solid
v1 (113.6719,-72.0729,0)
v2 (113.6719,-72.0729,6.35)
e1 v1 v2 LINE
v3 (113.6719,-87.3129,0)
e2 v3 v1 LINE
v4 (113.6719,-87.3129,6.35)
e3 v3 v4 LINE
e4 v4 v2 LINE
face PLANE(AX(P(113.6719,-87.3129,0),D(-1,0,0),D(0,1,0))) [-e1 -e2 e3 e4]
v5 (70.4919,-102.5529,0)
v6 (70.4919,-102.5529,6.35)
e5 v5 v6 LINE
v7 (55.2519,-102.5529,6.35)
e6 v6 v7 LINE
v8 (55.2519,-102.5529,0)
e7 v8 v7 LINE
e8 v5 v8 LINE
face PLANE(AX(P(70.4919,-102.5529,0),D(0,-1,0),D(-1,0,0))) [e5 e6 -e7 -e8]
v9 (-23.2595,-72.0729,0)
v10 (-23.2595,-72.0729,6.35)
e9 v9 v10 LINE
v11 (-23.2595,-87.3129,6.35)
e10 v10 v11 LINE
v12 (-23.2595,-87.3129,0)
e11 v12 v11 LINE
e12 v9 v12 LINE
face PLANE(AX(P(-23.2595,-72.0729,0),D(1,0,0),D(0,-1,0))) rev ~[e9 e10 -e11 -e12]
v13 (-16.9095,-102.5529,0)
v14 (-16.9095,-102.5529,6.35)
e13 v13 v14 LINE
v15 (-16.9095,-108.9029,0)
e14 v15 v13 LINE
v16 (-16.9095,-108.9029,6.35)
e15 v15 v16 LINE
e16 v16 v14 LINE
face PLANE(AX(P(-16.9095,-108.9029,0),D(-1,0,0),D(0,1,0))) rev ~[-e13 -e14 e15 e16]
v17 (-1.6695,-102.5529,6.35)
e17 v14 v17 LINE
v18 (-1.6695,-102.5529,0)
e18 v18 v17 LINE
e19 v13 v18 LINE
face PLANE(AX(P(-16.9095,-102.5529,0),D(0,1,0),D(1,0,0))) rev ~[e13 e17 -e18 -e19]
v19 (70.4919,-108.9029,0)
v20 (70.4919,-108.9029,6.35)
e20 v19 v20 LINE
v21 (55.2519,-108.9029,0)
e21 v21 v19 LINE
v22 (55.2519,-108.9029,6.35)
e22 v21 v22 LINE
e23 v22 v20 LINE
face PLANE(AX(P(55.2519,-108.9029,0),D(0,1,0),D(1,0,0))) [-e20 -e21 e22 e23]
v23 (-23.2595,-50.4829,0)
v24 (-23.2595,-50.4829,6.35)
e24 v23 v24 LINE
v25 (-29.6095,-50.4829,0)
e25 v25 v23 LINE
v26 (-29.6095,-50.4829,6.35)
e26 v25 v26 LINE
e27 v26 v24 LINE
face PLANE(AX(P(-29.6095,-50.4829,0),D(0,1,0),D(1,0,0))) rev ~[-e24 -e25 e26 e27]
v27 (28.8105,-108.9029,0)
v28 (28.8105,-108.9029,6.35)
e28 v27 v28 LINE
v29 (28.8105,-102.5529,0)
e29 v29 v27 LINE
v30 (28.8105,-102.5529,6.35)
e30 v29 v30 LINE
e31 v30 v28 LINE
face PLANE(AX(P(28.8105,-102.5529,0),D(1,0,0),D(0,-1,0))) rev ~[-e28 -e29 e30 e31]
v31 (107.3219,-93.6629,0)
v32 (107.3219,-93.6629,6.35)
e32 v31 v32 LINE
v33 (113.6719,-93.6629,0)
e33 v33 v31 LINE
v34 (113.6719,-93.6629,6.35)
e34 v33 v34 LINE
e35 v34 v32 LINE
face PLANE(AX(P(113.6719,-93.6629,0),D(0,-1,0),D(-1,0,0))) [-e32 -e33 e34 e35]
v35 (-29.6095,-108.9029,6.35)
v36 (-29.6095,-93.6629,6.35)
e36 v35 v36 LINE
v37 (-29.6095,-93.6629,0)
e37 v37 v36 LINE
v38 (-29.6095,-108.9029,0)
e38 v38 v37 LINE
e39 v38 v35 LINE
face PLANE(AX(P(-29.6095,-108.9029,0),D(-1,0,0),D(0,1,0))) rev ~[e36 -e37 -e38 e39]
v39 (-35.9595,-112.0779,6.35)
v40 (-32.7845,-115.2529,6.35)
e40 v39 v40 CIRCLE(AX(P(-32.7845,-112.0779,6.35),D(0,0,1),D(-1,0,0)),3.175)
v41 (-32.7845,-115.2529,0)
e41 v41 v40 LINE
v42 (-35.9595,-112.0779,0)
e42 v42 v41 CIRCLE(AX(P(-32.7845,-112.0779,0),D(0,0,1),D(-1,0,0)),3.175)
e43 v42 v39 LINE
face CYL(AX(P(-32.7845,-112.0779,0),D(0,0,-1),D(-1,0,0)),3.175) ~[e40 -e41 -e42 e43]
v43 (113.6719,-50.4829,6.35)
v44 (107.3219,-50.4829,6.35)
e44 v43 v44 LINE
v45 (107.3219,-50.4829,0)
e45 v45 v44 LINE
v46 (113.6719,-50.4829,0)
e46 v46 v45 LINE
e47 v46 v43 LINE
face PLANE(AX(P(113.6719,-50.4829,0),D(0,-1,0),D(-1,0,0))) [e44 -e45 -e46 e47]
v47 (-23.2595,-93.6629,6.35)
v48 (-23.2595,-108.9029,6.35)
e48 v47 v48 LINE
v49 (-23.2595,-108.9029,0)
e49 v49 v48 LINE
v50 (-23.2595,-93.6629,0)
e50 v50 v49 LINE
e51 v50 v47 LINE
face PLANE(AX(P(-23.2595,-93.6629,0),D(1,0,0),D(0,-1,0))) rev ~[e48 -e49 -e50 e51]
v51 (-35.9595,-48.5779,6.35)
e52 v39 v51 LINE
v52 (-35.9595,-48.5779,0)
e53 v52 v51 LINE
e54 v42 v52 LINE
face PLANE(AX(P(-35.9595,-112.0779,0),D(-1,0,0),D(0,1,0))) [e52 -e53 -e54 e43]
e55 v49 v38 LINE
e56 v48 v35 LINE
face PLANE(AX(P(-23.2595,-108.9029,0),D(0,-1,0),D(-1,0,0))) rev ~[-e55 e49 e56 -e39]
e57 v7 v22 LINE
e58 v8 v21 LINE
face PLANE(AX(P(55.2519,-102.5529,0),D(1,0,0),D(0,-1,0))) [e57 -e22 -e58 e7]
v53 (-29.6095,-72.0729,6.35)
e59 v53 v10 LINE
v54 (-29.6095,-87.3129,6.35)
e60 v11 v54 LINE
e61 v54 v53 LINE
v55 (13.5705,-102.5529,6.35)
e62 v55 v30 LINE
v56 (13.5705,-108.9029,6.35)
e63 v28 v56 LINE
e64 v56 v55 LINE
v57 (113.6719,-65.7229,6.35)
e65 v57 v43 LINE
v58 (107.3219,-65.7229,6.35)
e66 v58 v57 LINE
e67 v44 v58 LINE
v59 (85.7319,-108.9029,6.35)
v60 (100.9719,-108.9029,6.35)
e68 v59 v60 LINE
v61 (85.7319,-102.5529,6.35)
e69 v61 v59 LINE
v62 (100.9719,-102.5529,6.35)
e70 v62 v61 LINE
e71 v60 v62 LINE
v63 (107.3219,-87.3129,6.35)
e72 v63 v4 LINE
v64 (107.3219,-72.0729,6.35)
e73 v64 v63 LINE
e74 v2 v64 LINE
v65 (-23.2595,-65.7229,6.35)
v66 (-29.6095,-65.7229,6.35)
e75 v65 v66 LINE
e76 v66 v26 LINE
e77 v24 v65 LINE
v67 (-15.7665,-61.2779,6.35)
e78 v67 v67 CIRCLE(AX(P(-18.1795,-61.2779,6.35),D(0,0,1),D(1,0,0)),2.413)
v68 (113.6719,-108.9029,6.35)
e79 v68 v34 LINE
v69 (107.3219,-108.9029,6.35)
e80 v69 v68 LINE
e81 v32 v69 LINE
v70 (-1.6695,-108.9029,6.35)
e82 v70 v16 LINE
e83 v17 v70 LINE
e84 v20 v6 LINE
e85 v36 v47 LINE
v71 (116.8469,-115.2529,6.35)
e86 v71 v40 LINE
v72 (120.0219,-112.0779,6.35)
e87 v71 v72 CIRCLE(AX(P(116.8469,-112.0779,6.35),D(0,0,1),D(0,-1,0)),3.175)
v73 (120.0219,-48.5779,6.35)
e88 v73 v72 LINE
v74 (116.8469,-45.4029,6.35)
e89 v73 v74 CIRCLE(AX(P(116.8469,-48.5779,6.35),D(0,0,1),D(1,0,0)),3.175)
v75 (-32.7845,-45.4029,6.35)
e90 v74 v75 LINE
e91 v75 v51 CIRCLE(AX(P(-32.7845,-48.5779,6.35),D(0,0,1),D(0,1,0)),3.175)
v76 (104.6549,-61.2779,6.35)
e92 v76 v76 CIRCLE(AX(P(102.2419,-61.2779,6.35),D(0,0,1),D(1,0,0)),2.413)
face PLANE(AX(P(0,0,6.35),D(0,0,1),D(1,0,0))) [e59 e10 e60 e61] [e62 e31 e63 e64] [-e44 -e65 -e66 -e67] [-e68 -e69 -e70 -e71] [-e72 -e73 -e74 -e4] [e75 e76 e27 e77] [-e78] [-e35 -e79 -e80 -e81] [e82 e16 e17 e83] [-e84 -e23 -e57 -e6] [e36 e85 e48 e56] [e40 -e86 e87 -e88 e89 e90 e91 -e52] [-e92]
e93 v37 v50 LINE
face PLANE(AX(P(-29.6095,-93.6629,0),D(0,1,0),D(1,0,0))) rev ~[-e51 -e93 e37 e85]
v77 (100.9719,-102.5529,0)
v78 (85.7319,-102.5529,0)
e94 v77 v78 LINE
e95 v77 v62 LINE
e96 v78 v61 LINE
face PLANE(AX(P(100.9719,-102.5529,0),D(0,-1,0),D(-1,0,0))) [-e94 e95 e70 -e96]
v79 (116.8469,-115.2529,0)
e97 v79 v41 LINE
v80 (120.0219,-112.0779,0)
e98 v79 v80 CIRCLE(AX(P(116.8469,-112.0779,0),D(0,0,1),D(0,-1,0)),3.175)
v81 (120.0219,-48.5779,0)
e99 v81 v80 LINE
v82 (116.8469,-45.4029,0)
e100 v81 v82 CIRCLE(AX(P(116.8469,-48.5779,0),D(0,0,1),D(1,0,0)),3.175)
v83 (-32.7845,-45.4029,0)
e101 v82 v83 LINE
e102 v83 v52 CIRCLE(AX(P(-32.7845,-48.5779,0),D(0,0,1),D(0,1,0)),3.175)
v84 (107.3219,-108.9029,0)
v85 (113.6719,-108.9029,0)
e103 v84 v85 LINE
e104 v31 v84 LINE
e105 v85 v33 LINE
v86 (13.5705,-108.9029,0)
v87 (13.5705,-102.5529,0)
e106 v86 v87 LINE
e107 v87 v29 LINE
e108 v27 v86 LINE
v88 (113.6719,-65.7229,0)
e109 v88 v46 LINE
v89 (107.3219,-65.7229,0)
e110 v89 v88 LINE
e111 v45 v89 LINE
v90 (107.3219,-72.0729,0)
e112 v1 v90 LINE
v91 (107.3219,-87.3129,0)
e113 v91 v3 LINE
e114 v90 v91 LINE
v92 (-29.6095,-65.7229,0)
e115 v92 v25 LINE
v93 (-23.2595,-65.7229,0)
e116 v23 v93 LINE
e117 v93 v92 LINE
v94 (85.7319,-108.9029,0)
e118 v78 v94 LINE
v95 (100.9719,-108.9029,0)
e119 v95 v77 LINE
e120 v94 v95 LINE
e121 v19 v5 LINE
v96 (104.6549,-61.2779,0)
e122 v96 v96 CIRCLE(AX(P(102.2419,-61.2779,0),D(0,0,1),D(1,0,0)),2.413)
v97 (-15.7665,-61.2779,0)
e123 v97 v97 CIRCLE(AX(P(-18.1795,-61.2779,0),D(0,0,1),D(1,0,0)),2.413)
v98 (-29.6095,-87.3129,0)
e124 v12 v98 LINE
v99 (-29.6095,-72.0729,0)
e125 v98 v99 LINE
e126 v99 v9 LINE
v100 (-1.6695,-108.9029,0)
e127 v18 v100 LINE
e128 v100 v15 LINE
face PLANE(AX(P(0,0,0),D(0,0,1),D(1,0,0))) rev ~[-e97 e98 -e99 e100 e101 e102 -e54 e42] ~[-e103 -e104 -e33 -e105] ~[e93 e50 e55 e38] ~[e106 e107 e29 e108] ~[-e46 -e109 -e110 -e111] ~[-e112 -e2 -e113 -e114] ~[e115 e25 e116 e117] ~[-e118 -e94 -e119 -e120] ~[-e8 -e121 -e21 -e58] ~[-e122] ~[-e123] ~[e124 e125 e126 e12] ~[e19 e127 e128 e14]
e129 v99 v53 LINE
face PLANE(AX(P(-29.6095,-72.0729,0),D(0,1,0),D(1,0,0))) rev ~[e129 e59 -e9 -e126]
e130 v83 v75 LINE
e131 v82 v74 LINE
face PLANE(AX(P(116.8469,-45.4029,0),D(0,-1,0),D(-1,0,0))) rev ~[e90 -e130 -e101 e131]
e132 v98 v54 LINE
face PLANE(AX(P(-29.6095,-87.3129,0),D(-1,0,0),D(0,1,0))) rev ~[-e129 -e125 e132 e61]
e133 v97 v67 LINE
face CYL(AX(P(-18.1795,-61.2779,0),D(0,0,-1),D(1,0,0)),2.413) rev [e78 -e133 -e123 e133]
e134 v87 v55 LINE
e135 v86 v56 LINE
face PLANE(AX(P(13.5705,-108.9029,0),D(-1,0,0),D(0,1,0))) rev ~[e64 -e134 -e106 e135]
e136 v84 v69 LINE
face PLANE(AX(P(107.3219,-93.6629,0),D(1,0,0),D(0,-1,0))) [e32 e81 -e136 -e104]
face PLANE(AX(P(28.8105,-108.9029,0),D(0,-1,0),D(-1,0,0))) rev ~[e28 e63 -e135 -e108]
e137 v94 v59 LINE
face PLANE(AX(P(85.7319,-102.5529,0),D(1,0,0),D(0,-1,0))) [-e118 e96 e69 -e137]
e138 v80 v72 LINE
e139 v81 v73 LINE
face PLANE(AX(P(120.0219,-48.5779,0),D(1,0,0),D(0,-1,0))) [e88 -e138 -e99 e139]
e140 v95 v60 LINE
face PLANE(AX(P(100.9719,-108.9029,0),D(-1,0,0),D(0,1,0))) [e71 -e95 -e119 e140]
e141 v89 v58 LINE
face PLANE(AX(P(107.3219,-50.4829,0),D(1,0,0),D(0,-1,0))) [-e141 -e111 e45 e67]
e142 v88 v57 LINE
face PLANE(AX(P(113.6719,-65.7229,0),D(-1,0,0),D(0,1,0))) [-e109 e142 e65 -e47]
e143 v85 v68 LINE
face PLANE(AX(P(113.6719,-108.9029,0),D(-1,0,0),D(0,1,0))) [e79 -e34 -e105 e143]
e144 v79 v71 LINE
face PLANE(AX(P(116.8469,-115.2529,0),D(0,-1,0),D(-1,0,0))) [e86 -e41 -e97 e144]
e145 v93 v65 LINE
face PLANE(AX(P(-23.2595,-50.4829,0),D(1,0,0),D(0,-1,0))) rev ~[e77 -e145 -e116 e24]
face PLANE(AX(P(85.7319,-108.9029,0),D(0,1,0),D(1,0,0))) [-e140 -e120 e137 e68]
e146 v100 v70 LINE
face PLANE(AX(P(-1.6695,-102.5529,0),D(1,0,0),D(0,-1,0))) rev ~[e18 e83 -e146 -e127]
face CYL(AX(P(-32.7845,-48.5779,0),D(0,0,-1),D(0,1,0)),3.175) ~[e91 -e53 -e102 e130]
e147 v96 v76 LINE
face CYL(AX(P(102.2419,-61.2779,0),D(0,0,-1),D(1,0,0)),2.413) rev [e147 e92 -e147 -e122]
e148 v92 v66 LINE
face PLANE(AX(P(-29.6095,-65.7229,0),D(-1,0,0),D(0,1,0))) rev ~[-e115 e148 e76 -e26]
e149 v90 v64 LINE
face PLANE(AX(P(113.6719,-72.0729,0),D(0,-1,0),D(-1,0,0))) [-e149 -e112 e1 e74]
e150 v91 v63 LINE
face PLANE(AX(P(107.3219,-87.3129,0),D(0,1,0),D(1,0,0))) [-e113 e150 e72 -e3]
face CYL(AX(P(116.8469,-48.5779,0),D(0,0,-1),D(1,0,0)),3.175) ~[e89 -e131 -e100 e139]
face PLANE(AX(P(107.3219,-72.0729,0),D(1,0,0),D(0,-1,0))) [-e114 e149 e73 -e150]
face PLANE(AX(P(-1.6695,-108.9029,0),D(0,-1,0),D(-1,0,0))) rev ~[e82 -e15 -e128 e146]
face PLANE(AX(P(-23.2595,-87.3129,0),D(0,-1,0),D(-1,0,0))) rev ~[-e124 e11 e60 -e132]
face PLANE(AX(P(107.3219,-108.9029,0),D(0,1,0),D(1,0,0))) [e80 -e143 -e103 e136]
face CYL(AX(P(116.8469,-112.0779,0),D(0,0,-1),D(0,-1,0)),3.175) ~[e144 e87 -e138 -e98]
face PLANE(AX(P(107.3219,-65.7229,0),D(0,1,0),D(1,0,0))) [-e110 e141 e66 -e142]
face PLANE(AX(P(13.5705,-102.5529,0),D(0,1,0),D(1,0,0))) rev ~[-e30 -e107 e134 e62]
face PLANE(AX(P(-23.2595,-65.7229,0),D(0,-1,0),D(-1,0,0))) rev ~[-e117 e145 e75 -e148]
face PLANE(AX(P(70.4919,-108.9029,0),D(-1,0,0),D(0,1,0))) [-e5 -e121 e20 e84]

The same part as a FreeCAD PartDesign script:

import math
import FreeCAD as App
import Part
import Sketcher
Q = App.Units.Quantity


def add_polygon(sketch, points):
    """Adds a closed chain of lines whose ends are joined by coincident constraints."""
    first, n = sketch.GeometryCount, len(points)
    for a, b in zip(points, points[1:] + points[:1]):
        sketch.addGeometry(Part.LineSegment(App.Vector(*a, 0), App.Vector(*b, 0)), False)
    for i in range(n):
        sketch.addConstraint(Sketcher.Constraint("Coincident", first + i, 2, first + (i + 1) % n, 1))

doc = App.newDocument("Part")
body = doc.addObject("PartDesign::Body", "Body")

# Sketch on XY plane
sketch1 = body.newObject("Sketcher::SketchObject", "Sketch")
sketch1.AttachmentSupport = (doc.getObject("XY_Plane"), [""])
sketch1.MapMode = "FlatFace"
sketch1.addGeometry(Part.ArcOfCircle(Part.Circle(App.Vector(116.8469, -48.5779, 0), App.Vector(0, 0, 1), 3.175), math.radians(0), math.radians(90)), False)  # 0
sketch1.addGeometry(Part.LineSegment(App.Vector(116.8469, -45.4029, 0), App.Vector(-32.7845, -45.4029, 0)), False)  # 1
sketch1.addGeometry(Part.ArcOfCircle(Part.Circle(App.Vector(-32.7845, -48.5779, 0), App.Vector(0, 0, 1), 3.175), math.radians(90), math.radians(180)), False)  # 2
sketch1.addGeometry(Part.LineSegment(App.Vector(-35.9595, -48.5779, 0), App.Vector(-35.9595, -112.0779, 0)), False)  # 3
sketch1.addGeometry(Part.ArcOfCircle(Part.Circle(App.Vector(-32.7845, -112.0779, 0), App.Vector(0, 0, 1), 3.175), math.radians(180), math.radians(270)), False)  # 4
sketch1.addGeometry(Part.LineSegment(App.Vector(-32.7845, -115.2529, 0), App.Vector(116.8469, -115.2529, 0)), False)  # 5
sketch1.addGeometry(Part.ArcOfCircle(Part.Circle(App.Vector(116.8469, -112.0779, 0), App.Vector(0, 0, 1), 3.175), math.radians(-90), math.radians(0)), False)  # 6
sketch1.addGeometry(Part.LineSegment(App.Vector(120.0219, -112.0779, 0), App.Vector(120.0219, -48.5779, 0)), False)  # 7
add_polygon(sketch1, [(-29.6095, -108.9029), (-29.6095, -93.6629), (-23.2595, -93.6629), (-23.2595, -108.9029)])  # lines 8-11
add_polygon(sketch1, [(-16.9095, -108.9029), (-16.9095, -102.5529), (-1.6695, -102.5529), (-1.6695, -108.9029)])  # lines 12-15
add_polygon(sketch1, [(13.5705, -108.9029), (13.5705, -102.5529), (28.8105, -102.5529), (28.8105, -108.9029)])  # lines 16-19
add_polygon(sketch1, [(55.2519, -102.5529), (70.4919, -102.5529), (70.4919, -108.9029), (55.2519, -108.9029)])  # lines 20-23
add_polygon(sketch1, [(85.7319, -102.5529), (100.9719, -102.5529), (100.9719, -108.9029), (85.7319, -108.9029)])  # lines 24-27
add_polygon(sketch1, [(107.3219, -93.6629), (113.6719, -93.6629), (113.6719, -108.9029), (107.3219, -108.9029)])  # lines 28-31
add_polygon(sketch1, [(-29.6095, -87.3129), (-29.6095, -72.0729), (-23.2595, -72.0729), (-23.2595, -87.3129)])  # lines 32-35
sketch1.addGeometry(Part.Circle(App.Vector(-18.1795, -61.2779, 0), App.Vector(0, 0, 1), 2.413), False)  # 36
add_polygon(sketch1, [(-29.6095, -65.7229), (-29.6095, -50.4829), (-23.2595, -50.4829), (-23.2595, -65.7229)])  # lines 37-40
add_polygon(sketch1, [(107.3219, -72.0729), (113.6719, -72.0729), (113.6719, -87.3129), (107.3219, -87.3129)])  # lines 41-44
sketch1.addGeometry(Part.Circle(App.Vector(102.2419, -61.2779, 0), App.Vector(0, 0, 1), 2.413), False)  # 45
add_polygon(sketch1, [(107.3219, -50.4829), (113.6719, -50.4829), (113.6719, -65.7229), (107.3219, -65.7229)])  # lines 46-49
sketch1.addConstraint(Sketcher.Constraint("Tangent", 0, 2, 1, 1))
sketch1.addConstraint(Sketcher.Constraint("Tangent", 1, 2, 2, 1))
sketch1.addConstraint(Sketcher.Constraint("Tangent", 2, 2, 3, 1))
sketch1.addConstraint(Sketcher.Constraint("Tangent", 3, 2, 4, 1))
sketch1.addConstraint(Sketcher.Constraint("Tangent", 4, 2, 5, 1))
sketch1.addConstraint(Sketcher.Constraint("Tangent", 5, 2, 6, 1))
sketch1.addConstraint(Sketcher.Constraint("Tangent", 6, 2, 7, 1))
sketch1.addConstraint(Sketcher.Constraint("Tangent", 7, 2, 0, 1))
sketch1.addConstraint(Sketcher.Constraint("Horizontal", 1))
sketch1.addConstraint(Sketcher.Constraint("Vertical", 3))
sketch1.addConstraint(Sketcher.Constraint("Horizontal", 5))
sketch1.addConstraint(Sketcher.Constraint("Vertical", 7))
sketch1.addConstraint(Sketcher.Constraint("Vertical", 8))
sketch1.addConstraint(Sketcher.Constraint("Horizontal", 9))
sketch1.addConstraint(Sketcher.Constraint("Vertical", 10))
sketch1.addConstraint(Sketcher.Constraint("Horizontal", 11))
sketch1.addConstraint(Sketcher.Constraint("Vertical", 12))
sketch1.addConstraint(Sketcher.Constraint("Horizontal", 13))
sketch1.addConstraint(Sketcher.Constraint("Vertical", 14))
sketch1.addConstraint(Sketcher.Constraint("Horizontal", 15))
sketch1.addConstraint(Sketcher.Constraint("Vertical", 16))
sketch1.addConstraint(Sketcher.Constraint("Horizontal", 17))
sketch1.addConstraint(Sketcher.Constraint("Vertical", 18))
sketch1.addConstraint(Sketcher.Constraint("Horizontal", 19))
sketch1.addConstraint(Sketcher.Constraint("Horizontal", 20))
sketch1.addConstraint(Sketcher.Constraint("Vertical", 21))
sketch1.addConstraint(Sketcher.Constraint("Horizontal", 22))
sketch1.addConstraint(Sketcher.Constraint("Vertical", 23))
sketch1.addConstraint(Sketcher.Constraint("Horizontal", 24))
sketch1.addConstraint(Sketcher.Constraint("Vertical", 25))
sketch1.addConstraint(Sketcher.Constraint("Horizontal", 26))
sketch1.addConstraint(Sketcher.Constraint("Vertical", 27))
sketch1.addConstraint(Sketcher.Constraint("Horizontal", 28))
sketch1.addConstraint(Sketcher.Constraint("Vertical", 29))
sketch1.addConstraint(Sketcher.Constraint("Horizontal", 30))
sketch1.addConstraint(Sketcher.Constraint("Vertical", 31))
sketch1.addConstraint(Sketcher.Constraint("Vertical", 32))
sketch1.addConstraint(Sketcher.Constraint("Horizontal", 33))
sketch1.addConstraint(Sketcher.Constraint("Vertical", 34))
sketch1.addConstraint(Sketcher.Constraint("Horizontal", 35))
sketch1.addConstraint(Sketcher.Constraint("Vertical", 37))
sketch1.addConstraint(Sketcher.Constraint("Horizontal", 38))
sketch1.addConstraint(Sketcher.Constraint("Vertical", 39))
sketch1.addConstraint(Sketcher.Constraint("Horizontal", 40))
sketch1.addConstraint(Sketcher.Constraint("Horizontal", 41))
sketch1.addConstraint(Sketcher.Constraint("Vertical", 42))
sketch1.addConstraint(Sketcher.Constraint("Horizontal", 43))
sketch1.addConstraint(Sketcher.Constraint("Vertical", 44))
sketch1.addConstraint(Sketcher.Constraint("Horizontal", 46))
sketch1.addConstraint(Sketcher.Constraint("Vertical", 47))
sketch1.addConstraint(Sketcher.Constraint("Horizontal", 48))
sketch1.addConstraint(Sketcher.Constraint("Vertical", 49))
sketch1.addConstraint(Sketcher.Constraint("Equal", 0, 2))
sketch1.addConstraint(Sketcher.Constraint("Equal", 2, 4))
sketch1.addConstraint(Sketcher.Constraint("Equal", 4, 6))
sketch1.addConstraint(Sketcher.Constraint("Equal", 36, 45))
sketch1.addConstraint(Sketcher.Constraint("Horizontal", 36, 3, 45, 3))
sketch1.addConstraint(Sketcher.Constraint("Horizontal", 11, 2, 14, 2))
sketch1.addConstraint(Sketcher.Constraint("Horizontal", 13, 2, 16, 2))
sketch1.addConstraint(Sketcher.Constraint("Horizontal", 15, 2, 18, 2))
sketch1.addConstraint(Sketcher.Constraint("Horizontal", 17, 2, 20, 2))
sketch1.addConstraint(Sketcher.Constraint("Horizontal", 19, 2, 21, 2))
sketch1.addConstraint(Sketcher.Constraint("Horizontal", 23, 2, 24, 2))
sketch1.addConstraint(Sketcher.Constraint("Horizontal", 22, 2, 25, 2))
sketch1.addConstraint(Sketcher.Constraint("Horizontal", 9, 2, 28, 2))
sketch1.addConstraint(Sketcher.Constraint("Horizontal", 26, 2, 29, 2))
sketch1.addConstraint(Sketcher.Constraint("Horizontal", 33, 2, 41, 2))
sketch1.addConstraint(Sketcher.Constraint("Horizontal", 35, 2, 42, 2))
sketch1.addConstraint(Sketcher.Constraint("Horizontal", 38, 2, 46, 2))
sketch1.addConstraint(Sketcher.Constraint("Horizontal", 40, 2, 47, 2))
sketch1.addConstraint(Sketcher.Constraint("Vertical", 11, 2, 32, 2))
sketch1.addConstraint(Sketcher.Constraint("Vertical", 10, 2, 33, 2))
sketch1.addConstraint(Sketcher.Constraint("Vertical", 35, 2, 37, 2))
sketch1.addConstraint(Sketcher.Constraint("Vertical", 34, 2, 38, 2))
sketch1.addConstraint(Sketcher.Constraint("Vertical", 29, 2, 41, 2))
sketch1.addConstraint(Sketcher.Constraint("Vertical", 31, 2, 43, 2))
sketch1.addConstraint(Sketcher.Constraint("Vertical", 42, 2, 46, 2))
sketch1.addConstraint(Sketcher.Constraint("Vertical", 44, 2, 48, 2))
sketch1.addConstraint(Sketcher.Constraint("Equal", 15, 17))
sketch1.addConstraint(Sketcher.Constraint("Equal", 19, 20))
sketch1.addConstraint(Sketcher.Constraint("Equal", 22, 24))
sketch1.addConstraint(Sketcher.Constraint("Equal", 11, 28))
sketch1.addConstraint(Sketcher.Constraint("Equal", 26, 8))
sketch1.addConstraint(Sketcher.Constraint("Equal", 48, 12))
sketch1.addConstraint(Sketcher.Constraint("Equal", 31, 32))
sketch1.addConstraint(Sketcher.Constraint("Equal", 34, 37))
sketch1.addConstraint(Sketcher.Constraint("Diameter", 36, Q("0.19 in")))
sketch1.addConstraint(Sketcher.Constraint("DistanceX", 13, 1, 13, 2, Q("0.6 in")))
sketch1.addConstraint(Sketcher.Constraint("Radius", 0, Q("0.125 in")))
sketch1.addConstraint(Sketcher.Constraint("DistanceX", 9, 1, 9, 2, Q("0.25 in")))
sketch1.addConstraint(Sketcher.Constraint("DistanceY", 36, 3, 2, 3, Q("0.5 in")))
sketch1.addConstraint(Sketcher.Constraint("DistanceX", 3, 2, 9, 2, Q("0.5 in")))
sketch1.addConstraint(Sketcher.Constraint("DistanceX", 9, 2, 36, 3, Q("0.2 in")))
sketch1.addConstraint(Sketcher.Constraint("DistanceX", 11, 2, 12, 2, Q("0.5 in")))
sketch1.addConstraint(Sketcher.Constraint("DistanceX", 13, 2, 16, 2, Q("0.6 in")))
sketch1.addConstraint(Sketcher.Constraint("DistanceY", 5, 2, 20, 2, Q("0.5 in")))
sketch1.addConstraint(Sketcher.Constraint("DistanceX", 21, 2, 26, 2, Q("0.6 in")))
sketch1.addConstraint(Sketcher.Constraint("DistanceX", 24, 2, 28, 2, Q("0.5 in")))
sketch1.addConstraint(Sketcher.Constraint("DistanceY", 12, 2, 34, 2, Q("0.6 in")))
sketch1.addConstraint(Sketcher.Constraint("DistanceY", 37, 2, 1, 2, Q("0.2 in")))
sketch1.addConstraint(Sketcher.Constraint("DistanceX", 45, 3, 44, 2, Q("0.2 in")))
sketch1.addConstraint(Sketcher.Constraint("DistanceX", 49, 2, 7, 2, Q("0.5 in")))
sketch1.addConstraint(Sketcher.Constraint("DistanceY", 5, 2, 0, 2, Q("2.75 in")))
sketch1.addConstraint(Sketcher.Constraint("DistanceX", 36, 3, 45, 3, Q("4.741 in")))
sketch1.addConstraint(Sketcher.Constraint("DistanceX", -1, 1, 0, 3, 116.847))
sketch1.addConstraint(Sketcher.Constraint("DistanceY", 0, 3, -1, 1, 48.578))
pad1 = body.newObject("PartDesign::Pad", "Pad")
pad1.Profile = sketch1
pad1.Length = Q("0.25 in")

doc.recompute()
